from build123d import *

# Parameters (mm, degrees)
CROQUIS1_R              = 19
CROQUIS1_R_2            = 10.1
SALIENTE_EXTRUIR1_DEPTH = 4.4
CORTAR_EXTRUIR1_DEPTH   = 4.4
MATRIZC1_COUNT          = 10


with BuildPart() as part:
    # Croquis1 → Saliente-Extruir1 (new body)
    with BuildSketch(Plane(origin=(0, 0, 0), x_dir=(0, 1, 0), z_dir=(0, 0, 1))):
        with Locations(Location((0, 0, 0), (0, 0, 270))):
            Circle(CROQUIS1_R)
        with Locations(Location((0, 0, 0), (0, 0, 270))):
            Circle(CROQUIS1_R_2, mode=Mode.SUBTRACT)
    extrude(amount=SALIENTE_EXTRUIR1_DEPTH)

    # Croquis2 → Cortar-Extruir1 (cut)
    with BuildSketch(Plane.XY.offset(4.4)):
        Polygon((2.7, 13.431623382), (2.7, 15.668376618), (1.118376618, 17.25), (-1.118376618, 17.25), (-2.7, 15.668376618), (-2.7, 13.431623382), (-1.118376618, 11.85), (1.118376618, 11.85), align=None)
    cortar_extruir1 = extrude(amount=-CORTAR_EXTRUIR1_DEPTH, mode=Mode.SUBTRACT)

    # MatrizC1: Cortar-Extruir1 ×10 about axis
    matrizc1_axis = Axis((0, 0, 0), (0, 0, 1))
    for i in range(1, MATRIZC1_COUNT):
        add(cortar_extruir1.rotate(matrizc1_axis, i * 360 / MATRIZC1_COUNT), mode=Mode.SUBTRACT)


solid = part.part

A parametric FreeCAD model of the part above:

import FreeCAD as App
import Part
import Sketcher
from FreeCAD import Vector

doc = App.newDocument("Part")
body = doc.addObject("PartDesign::Body", "Body")

# Sketch on XY plane
sketch1 = doc.addObject("Sketcher::SketchObject", "Sketch")
body.addObject(sketch1)
sketch1.AttachmentSupport = (doc.XY_Plane, [""])
sketch1.MapMode = "FlatFace"
sketch1.addGeometry([
    Part.Circle(Vector(0, 0, 0), Vector(0, 0, 1), 19),
    Part.Circle(Vector(0, 0, 0), Vector(0, 0, 1), 10),
], False)
sketch1.addConstraint([
    Sketcher.Constraint("Coincident", 0, 3, -1, 1),
    Sketcher.Constraint("Coincident", 1, 3, -1, 1),
    Sketcher.Constraint("Diameter", 0, 38.0),
    Sketcher.Constraint("Diameter", 1, 20.2),
])
pad1 = doc.addObject("PartDesign::Pad", "Pad")
body.addObject(pad1)
pad1.Profile = sketch1
pad1.Length = 4.4

# Sketch on XY plane
sketch2 = doc.addObject("Sketcher::SketchObject", "Sketch001")
body.addObject(sketch2)
sketch2.AttachmentSupport = (doc.XY_Plane, [""])
sketch2.MapMode = "FlatFace"
sketch2.AttachmentOffset = App.Placement(Vector(0, 0, 4.4), App.Rotation())
sketch2.addGeometry([
    Part.LineSegment(Vector(2.7, 13.4, 0), Vector(2.7, 15.7, 0)),  # 0
    Part.LineSegment(Vector(2.7, 15.7, 0), Vector(1.1, 17.2, 0)),  # 1
    Part.LineSegment(Vector(1.1, 17.2, 0), Vector(-1.1, 17.2, 0)),  # 2
    Part.LineSegment(Vector(-1.1, 17.2, 0), Vector(-2.7, 15.7, 0)),  # 3
    Part.LineSegment(Vector(-2.7, 15.7, 0), Vector(-2.7, 13.4, 0)),  # 4
    Part.LineSegment(Vector(-2.7, 13.4, 0), Vector(-1.1, 11.8, 0)),  # 5
    Part.LineSegment(Vector(-1.1, 11.8, 0), Vector(1.1, 11.8, 0)),  # 6
    Part.LineSegment(Vector(1.1, 11.8, 0), Vector(2.7, 13.4, 0)),  # 7
], False)
sketch2.addConstraint([
    Sketcher.Constraint("Coincident", 0, 2, 1, 1),
    Sketcher.Constraint("Coincident", 1, 2, 2, 1),
    Sketcher.Constraint("Coincident", 2, 2, 3, 1),
    Sketcher.Constraint("Coincident", 3, 2, 4, 1),
    Sketcher.Constraint("Coincident", 4, 2, 5, 1),
    Sketcher.Constraint("Coincident", 5, 2, 6, 1),
    Sketcher.Constraint("Coincident", 6, 2, 7, 1),
    Sketcher.Constraint("Coincident", 7, 2, 0, 1),
    Sketcher.Constraint("Vertical", 0),
    Sketcher.Constraint("Horizontal", 2),
    Sketcher.Constraint("Vertical", 4),
    Sketcher.Constraint("Horizontal", 6),
    Sketcher.Constraint("Symmetric", 0, 2, 3, 2, -2),
    Sketcher.Constraint("Perpendicular", 1, 3),
    Sketcher.Constraint("Perpendicular", 3, 5),
    Sketcher.Constraint("Perpendicular", 5, 7),
    Sketcher.Constraint("Horizontal", 4, 2, 7, 2),
    Sketcher.Constraint("Vertical", 2, 2, 5, 2),
    Sketcher.Constraint("Vertical", 1, 2, 6, 2),
    Sketcher.Constraint("Equal", 6, 0),
    Sketcher.Constraint("DistanceX", -1, 1, 0, 2, 2.7),
    Sketcher.Constraint("DistanceY", -1, 1, 1, 2, 17.25),
    Sketcher.Constraint("DistanceX", 2, 2, 2, 1, 2.236753),
])
pocket1 = doc.addObject("PartDesign::Pocket", "Pocket")
body.addObject(pocket1)
pocket1.Profile = sketch2
pocket1.Length = 4.4
doc.recompute()

polarpattern = doc.addObject("PartDesign::PolarPattern", "PolarPattern")
body.addObject(polarpattern)
polarpattern.Originals = [pocket1]
polarpattern.Axis = (doc.Z_Axis, [""])
polarpattern.Angle = 360
polarpattern.Occurrences = 10
body.Tip = polarpattern

doc.recompute()
